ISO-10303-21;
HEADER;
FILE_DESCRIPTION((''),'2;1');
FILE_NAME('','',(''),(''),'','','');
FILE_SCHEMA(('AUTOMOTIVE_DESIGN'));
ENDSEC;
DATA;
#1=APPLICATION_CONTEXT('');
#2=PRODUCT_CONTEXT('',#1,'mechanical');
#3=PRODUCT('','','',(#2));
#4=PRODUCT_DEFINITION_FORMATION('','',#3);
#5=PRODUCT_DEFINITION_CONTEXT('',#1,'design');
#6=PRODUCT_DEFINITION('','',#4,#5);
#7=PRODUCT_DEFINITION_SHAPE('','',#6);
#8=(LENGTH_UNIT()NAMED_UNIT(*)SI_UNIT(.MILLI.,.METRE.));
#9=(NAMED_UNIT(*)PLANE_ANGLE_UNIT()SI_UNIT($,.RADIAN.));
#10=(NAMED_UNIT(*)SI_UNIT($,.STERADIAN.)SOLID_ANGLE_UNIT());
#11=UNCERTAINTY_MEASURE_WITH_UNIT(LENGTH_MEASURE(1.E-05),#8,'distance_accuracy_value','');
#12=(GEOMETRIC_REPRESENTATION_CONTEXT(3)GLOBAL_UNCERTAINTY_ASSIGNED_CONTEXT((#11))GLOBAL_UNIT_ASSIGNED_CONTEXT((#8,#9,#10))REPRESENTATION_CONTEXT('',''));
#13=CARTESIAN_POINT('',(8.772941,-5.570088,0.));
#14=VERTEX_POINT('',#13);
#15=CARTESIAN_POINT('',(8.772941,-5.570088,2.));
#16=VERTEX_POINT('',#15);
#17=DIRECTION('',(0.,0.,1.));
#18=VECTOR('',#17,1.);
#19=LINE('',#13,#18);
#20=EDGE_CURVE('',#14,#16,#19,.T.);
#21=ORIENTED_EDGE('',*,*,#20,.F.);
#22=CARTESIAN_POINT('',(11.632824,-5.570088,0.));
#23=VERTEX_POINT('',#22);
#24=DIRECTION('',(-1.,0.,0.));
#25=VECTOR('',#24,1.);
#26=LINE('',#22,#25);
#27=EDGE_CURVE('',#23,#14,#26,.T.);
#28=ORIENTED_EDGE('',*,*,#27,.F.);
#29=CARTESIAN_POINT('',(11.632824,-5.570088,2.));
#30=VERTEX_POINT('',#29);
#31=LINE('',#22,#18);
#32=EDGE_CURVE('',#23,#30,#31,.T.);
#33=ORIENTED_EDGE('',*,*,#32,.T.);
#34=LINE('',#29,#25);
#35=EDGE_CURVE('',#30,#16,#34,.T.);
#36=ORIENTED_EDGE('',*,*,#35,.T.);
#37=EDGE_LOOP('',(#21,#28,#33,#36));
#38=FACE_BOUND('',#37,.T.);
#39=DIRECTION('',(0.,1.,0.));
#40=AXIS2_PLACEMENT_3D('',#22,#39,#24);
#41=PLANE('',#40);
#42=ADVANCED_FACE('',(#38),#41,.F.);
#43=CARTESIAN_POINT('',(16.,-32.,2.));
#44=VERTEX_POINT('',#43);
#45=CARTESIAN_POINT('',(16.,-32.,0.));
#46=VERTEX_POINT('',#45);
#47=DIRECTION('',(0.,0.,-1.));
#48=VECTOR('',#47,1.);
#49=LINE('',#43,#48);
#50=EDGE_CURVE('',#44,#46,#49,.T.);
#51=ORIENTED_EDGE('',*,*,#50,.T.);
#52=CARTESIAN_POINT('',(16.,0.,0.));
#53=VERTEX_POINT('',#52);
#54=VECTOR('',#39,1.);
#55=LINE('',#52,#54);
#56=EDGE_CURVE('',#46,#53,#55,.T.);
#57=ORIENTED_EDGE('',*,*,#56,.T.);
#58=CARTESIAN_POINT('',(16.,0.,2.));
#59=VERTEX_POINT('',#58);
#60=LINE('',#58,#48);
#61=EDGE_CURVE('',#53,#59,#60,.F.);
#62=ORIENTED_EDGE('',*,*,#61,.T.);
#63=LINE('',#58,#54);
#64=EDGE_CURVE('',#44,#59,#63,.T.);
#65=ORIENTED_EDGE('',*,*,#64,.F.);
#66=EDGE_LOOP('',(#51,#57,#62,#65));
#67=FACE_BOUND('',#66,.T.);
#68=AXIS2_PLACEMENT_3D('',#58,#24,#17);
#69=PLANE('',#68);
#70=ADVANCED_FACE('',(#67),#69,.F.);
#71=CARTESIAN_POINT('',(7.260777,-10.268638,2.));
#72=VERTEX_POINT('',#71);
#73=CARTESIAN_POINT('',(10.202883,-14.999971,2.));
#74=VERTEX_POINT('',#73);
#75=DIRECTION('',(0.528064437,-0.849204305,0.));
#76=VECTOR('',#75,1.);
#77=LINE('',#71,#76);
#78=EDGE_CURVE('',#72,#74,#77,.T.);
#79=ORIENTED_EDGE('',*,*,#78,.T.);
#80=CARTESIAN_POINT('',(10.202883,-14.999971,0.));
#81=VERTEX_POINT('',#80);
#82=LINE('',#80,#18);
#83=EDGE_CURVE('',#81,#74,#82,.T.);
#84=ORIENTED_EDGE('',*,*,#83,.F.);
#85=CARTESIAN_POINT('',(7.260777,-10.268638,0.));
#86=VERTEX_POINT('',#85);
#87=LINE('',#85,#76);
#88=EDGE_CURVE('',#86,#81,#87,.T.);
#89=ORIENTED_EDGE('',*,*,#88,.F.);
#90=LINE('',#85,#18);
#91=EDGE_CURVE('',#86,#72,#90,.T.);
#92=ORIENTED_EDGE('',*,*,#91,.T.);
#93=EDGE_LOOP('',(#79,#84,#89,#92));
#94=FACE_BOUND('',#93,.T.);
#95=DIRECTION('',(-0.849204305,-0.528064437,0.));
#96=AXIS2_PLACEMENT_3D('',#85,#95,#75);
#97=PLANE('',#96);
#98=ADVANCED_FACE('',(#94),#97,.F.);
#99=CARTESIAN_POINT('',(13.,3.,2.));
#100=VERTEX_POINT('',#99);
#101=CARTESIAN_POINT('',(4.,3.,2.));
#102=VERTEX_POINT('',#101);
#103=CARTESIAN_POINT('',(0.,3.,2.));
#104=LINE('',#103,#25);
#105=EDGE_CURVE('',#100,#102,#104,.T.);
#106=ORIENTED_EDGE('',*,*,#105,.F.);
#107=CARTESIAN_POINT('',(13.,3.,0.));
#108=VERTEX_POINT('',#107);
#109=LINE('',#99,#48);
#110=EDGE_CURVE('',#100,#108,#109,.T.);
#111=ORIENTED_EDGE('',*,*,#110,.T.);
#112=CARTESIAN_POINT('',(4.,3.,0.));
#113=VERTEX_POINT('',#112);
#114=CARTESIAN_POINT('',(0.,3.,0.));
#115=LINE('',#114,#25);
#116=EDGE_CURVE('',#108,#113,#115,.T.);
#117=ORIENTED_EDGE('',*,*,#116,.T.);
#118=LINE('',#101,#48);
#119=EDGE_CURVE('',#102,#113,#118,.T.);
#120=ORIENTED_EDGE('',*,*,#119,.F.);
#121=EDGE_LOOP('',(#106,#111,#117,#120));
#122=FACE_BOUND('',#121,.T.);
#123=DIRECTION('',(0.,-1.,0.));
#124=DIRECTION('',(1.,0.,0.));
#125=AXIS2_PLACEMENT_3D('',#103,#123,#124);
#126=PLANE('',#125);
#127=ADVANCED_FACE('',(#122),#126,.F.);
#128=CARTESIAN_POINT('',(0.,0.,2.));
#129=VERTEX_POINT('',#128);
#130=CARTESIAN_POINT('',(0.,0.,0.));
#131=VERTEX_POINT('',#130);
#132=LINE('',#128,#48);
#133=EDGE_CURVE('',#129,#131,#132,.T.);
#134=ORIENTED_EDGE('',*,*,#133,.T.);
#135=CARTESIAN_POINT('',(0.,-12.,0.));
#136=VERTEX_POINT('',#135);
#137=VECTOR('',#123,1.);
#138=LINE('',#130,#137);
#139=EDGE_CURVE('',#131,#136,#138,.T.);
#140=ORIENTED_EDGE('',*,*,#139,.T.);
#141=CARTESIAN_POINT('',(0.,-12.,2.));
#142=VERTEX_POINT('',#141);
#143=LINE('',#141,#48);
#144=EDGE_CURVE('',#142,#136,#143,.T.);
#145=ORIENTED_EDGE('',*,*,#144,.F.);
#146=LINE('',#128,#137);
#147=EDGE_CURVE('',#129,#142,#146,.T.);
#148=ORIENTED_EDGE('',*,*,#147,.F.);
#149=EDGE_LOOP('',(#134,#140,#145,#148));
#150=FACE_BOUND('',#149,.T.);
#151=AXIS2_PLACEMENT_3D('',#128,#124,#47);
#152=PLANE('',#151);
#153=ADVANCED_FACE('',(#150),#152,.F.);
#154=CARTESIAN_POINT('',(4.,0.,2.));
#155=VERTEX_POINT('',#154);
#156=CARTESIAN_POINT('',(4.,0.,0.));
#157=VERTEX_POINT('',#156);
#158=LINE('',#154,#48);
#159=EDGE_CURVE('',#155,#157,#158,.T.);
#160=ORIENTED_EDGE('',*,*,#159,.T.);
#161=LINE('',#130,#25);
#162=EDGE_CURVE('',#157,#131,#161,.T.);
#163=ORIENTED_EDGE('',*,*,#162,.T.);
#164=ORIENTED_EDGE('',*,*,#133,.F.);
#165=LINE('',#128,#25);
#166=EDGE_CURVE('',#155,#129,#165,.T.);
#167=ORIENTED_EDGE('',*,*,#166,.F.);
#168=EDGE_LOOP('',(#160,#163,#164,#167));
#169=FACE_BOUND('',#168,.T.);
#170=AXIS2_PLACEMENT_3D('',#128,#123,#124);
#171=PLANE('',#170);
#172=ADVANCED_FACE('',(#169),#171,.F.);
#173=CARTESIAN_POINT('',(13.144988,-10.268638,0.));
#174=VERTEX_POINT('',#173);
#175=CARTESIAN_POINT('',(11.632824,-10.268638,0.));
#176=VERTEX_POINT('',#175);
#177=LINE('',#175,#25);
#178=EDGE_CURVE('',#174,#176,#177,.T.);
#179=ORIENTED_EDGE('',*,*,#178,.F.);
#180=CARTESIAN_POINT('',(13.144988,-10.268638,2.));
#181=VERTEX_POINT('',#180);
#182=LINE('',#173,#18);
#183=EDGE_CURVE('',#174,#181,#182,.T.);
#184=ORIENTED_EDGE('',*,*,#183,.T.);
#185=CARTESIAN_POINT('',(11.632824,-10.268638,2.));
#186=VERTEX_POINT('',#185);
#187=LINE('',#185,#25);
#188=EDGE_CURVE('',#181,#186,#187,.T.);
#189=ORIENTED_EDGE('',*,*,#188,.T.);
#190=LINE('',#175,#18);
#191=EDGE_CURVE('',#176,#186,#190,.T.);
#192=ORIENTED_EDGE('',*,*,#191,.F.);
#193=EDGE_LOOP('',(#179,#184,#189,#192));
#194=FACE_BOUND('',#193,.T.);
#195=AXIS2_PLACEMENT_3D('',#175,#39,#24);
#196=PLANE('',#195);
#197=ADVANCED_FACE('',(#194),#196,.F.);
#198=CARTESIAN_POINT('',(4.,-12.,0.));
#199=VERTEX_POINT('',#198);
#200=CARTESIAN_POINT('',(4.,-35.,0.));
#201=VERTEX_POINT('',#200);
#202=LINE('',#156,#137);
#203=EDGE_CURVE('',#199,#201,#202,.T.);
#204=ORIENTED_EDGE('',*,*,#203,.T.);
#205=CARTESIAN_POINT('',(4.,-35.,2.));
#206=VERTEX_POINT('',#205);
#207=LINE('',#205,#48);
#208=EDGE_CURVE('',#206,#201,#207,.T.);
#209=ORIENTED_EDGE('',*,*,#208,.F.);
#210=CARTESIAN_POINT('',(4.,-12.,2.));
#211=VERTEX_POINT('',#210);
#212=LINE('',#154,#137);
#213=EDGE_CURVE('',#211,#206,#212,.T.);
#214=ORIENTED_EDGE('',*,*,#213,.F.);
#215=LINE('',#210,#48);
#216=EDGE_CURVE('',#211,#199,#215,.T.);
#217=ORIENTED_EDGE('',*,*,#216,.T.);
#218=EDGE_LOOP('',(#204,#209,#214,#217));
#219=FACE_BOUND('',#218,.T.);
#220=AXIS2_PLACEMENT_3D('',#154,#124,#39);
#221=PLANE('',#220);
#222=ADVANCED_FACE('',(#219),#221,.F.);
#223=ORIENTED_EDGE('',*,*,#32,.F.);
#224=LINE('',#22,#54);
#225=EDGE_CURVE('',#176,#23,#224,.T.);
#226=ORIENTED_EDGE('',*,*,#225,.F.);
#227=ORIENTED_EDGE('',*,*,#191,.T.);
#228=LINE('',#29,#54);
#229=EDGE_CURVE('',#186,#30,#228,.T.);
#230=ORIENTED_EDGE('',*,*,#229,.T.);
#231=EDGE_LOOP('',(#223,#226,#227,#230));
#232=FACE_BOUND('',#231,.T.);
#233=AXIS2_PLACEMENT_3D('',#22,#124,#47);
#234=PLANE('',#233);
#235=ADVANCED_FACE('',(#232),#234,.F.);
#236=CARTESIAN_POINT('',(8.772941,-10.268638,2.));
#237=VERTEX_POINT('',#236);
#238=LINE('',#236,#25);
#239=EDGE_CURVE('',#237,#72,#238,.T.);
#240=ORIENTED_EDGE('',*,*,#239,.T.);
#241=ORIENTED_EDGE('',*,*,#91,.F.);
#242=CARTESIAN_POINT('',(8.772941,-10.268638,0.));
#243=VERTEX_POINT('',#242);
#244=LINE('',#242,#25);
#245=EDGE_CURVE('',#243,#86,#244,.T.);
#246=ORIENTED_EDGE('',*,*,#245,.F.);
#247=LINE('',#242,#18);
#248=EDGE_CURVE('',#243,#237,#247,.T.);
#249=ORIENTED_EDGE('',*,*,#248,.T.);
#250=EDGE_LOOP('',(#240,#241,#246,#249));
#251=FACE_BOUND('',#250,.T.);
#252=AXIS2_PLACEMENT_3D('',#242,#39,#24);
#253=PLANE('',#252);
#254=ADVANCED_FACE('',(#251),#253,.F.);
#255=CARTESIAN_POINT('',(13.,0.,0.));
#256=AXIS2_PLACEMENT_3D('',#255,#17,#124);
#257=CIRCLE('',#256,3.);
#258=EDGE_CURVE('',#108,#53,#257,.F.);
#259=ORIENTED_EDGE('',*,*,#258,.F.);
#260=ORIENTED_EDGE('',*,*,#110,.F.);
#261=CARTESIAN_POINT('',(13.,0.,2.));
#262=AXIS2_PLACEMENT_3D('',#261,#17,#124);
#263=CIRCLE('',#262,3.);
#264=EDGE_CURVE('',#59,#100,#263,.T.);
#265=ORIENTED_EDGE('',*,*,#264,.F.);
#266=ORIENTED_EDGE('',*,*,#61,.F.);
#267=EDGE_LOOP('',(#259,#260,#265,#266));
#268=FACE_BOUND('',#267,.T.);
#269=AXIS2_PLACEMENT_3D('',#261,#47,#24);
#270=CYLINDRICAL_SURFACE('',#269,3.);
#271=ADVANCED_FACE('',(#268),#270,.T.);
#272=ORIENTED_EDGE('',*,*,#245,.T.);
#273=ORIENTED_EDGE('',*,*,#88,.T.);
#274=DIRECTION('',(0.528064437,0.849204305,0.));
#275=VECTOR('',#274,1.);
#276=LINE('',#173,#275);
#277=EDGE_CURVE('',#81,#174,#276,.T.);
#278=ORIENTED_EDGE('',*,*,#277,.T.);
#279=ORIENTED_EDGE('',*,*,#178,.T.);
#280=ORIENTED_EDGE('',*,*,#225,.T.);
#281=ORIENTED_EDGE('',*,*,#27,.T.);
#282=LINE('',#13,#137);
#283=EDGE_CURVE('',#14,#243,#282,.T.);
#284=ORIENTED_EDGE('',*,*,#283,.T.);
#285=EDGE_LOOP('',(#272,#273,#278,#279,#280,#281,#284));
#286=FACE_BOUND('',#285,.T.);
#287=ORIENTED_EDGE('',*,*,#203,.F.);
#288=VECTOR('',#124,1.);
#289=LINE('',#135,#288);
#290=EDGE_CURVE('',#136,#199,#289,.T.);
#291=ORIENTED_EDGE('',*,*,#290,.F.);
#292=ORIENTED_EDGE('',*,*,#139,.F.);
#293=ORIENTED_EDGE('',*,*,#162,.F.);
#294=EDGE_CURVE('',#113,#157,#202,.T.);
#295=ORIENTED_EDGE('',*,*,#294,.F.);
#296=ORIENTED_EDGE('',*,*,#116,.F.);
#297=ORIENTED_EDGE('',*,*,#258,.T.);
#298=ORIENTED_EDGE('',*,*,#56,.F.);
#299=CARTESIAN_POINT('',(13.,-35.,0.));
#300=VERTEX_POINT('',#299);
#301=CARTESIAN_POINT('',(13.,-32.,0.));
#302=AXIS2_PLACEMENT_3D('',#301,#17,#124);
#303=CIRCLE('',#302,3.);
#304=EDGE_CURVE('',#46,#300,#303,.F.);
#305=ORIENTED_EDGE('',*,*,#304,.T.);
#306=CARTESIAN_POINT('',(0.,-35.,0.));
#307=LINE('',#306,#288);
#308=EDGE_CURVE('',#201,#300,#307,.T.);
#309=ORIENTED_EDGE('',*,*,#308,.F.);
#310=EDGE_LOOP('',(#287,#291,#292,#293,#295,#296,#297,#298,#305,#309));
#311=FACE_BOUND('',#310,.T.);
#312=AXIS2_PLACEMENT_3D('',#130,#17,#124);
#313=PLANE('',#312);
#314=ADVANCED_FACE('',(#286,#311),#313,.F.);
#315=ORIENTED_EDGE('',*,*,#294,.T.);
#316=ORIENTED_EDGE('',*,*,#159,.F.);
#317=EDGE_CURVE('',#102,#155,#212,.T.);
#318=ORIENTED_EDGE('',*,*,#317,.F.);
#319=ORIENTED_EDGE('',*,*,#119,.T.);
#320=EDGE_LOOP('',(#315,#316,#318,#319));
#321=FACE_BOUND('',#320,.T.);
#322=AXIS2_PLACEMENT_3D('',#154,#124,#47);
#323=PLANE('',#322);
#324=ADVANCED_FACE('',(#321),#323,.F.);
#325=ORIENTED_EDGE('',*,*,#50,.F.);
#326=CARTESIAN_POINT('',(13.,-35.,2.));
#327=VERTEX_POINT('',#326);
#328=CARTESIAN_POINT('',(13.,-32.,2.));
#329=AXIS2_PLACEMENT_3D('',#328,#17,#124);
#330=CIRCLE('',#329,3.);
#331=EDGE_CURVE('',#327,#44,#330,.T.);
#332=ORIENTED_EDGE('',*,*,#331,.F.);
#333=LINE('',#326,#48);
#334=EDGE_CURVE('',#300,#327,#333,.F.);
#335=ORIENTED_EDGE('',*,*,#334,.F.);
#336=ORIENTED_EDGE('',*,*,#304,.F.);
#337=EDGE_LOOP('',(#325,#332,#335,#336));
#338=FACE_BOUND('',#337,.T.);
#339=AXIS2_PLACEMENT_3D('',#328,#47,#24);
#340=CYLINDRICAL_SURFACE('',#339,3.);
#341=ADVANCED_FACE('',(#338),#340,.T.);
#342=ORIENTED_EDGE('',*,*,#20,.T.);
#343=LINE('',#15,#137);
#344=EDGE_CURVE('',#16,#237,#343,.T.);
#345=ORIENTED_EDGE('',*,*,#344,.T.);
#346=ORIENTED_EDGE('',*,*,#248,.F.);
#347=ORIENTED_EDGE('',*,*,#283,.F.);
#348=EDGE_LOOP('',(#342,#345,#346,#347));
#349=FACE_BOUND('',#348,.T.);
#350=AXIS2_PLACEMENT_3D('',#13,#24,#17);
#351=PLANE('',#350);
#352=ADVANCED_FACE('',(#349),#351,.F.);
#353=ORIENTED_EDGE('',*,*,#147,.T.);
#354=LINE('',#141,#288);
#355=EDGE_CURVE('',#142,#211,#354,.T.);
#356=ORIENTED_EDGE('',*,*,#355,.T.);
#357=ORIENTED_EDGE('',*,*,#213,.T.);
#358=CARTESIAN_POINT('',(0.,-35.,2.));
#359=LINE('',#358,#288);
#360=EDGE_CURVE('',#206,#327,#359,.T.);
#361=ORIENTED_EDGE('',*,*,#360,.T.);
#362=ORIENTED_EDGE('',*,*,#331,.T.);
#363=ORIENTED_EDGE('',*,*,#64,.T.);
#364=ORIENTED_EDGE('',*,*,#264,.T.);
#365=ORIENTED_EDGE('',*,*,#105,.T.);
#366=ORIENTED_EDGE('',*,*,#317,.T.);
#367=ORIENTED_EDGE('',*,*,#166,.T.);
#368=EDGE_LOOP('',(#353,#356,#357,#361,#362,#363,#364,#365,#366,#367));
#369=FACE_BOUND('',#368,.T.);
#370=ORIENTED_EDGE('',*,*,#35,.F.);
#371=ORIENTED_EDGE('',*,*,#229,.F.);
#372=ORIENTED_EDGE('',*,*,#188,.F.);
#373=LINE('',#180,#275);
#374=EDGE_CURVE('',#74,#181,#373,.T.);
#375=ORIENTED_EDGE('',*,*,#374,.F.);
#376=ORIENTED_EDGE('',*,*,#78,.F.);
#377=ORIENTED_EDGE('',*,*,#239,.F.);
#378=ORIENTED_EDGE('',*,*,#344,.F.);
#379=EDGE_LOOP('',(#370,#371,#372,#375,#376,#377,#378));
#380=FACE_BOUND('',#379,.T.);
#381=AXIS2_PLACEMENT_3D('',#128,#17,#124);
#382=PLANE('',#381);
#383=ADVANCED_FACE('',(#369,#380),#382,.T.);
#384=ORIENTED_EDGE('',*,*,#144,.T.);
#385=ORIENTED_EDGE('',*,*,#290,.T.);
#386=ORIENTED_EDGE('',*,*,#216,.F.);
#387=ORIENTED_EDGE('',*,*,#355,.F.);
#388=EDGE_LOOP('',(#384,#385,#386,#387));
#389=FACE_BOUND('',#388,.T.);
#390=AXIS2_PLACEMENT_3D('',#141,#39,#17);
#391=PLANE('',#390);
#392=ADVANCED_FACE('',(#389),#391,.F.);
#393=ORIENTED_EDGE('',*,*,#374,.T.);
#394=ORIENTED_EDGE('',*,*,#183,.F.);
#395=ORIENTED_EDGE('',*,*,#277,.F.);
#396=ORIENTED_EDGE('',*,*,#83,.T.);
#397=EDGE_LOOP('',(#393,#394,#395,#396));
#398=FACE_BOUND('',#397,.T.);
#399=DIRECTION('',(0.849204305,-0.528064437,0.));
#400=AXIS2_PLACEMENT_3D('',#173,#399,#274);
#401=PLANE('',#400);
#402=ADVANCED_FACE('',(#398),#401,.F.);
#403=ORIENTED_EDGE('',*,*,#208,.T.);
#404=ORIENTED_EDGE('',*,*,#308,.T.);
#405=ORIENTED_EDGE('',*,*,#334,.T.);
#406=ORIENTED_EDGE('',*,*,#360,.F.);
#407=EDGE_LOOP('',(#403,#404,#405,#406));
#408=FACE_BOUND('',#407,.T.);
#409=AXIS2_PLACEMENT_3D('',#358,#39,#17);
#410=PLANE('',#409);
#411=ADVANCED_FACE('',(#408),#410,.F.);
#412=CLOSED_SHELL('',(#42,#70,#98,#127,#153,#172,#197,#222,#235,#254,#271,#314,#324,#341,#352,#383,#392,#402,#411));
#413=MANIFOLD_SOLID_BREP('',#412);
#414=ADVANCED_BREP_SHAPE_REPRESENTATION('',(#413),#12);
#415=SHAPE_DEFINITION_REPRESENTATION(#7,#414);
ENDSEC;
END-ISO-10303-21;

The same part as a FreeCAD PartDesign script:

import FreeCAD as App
import Part
import Sketcher
Q = App.Units.Quantity


def edges_at(feature, points):
    """Names of the edges that pass closest to the given points."""
    edges = feature.Shape.Edges
    near = lambda p: min(range(len(edges)), key=lambda i: edges[i].distToShape(Part.Vertex(*p))[0])
    return sorted({f"Edge{near(p) + 1}" for p in points})


def add_polygon(sketch, points):
    """Adds a closed chain of lines whose ends are joined by coincident constraints."""
    first, n = sketch.GeometryCount, len(points)
    for a, b in zip(points, points[1:] + points[:1]):
        sketch.addGeometry(Part.LineSegment(App.Vector(*a, 0), App.Vector(*b, 0)), False)
    for i in range(n):
        sketch.addConstraint(Sketcher.Constraint("Coincident", first + i, 2, first + (i + 1) % n, 1))

doc = App.newDocument("Part")
body = doc.addObject("PartDesign::Body", "Body")

# Sketch on XY plane
sketch1 = body.newObject("Sketcher::SketchObject", "Sketch")
sketch1.AttachmentSupport = (doc.getObject("XY_Plane"), [""])
sketch1.MapMode = "FlatFace"
add_polygon(sketch1, [(4, 0), (0, 0), (0, -12), (4, -12), (4, -35), (16, -35), (16, 3), (4, 3)])  # lines 0-7
sketch1.addConstraint(Sketcher.Constraint("Horizontal", 0))
sketch1.addConstraint(Sketcher.Constraint("Vertical", 1))
sketch1.addConstraint(Sketcher.Constraint("Horizontal", 2))
sketch1.addConstraint(Sketcher.Constraint("Vertical", 3))
sketch1.addConstraint(Sketcher.Constraint("Horizontal", 4))
sketch1.addConstraint(Sketcher.Constraint("Vertical", 5))
sketch1.addConstraint(Sketcher.Constraint("Horizontal", 6))
sketch1.addConstraint(Sketcher.Constraint("Vertical", 7))
sketch1.addConstraint(Sketcher.Constraint("Coincident", 0, 2, -1, 1))
sketch1.addConstraint(Sketcher.Constraint("Vertical", 3, 2, 6, 2))
sketch1.addConstraint(Sketcher.Constraint("Equal", 6, 1))
sketch1.addConstraint(Sketcher.Constraint("DistanceX", 0, 2, 0, 1, Q("4 mm")))
sketch1.addConstraint(Sketcher.Constraint("DistanceX", 4, 1, 4, 2, Q("12 mm")))
sketch1.addConstraint(Sketcher.Constraint("DistanceY", 3, 2, 3, 1, Q("23 mm")))
sketch1.addConstraint(Sketcher.Constraint("DistanceY", 5, 1, 5, 2, Q("38 mm")))
pad1 = body.newObject("PartDesign::Pad", "Pad")
pad1.Profile = sketch1
pad1.Length = 2

# Sketch on XY plane
sketch2 = body.newObject("Sketcher::SketchObject", "Sketch001")
sketch2.AttachmentSupport = (doc.getObject("XY_Plane"), [""])
sketch2.MapMode = "FlatFace"
sketch2.AttachmentOffset = App.Placement(App.Vector(0, 0, 2), App.Rotation())
add_polygon(sketch2, [(11.6, -5.6), (8.8, -5.6), (8.8, -10.3), (7.3, -10.3), (10.2, -15), (13.1, -10.3), (11.6, -10.3)])  # lines 0-6
sketch2.addConstraint(Sketcher.Constraint("Horizontal", 0))
sketch2.addConstraint(Sketcher.Constraint("Vertical", 1))
sketch2.addConstraint(Sketcher.Constraint("Horizontal", 2))
sketch2.addConstraint(Sketcher.Constraint("Horizontal", 5))
sketch2.addConstraint(Sketcher.Constraint("Vertical", 6))
sketch2.addConstraint(Sketcher.Constraint("Horizontal", 2, 2, 4, 2))
sketch2.addConstraint(Sketcher.Constraint("Equal", 2, 5))
sketch2.addConstraint(Sketcher.Constraint("Equal", 3, 4))
sketch2.addConstraint(Sketcher.Constraint("DistanceY", 1, 2, 1, 1, Q("4.69855 mm")))
sketch2.addConstraint(Sketcher.Constraint("Distance", 3, Q("5.57149 mm")))
sketch2.addConstraint(Sketcher.Constraint("DistanceX", 0, 2, 0, 1, Q("2.859883 mm")))
sketch2.addConstraint(Sketcher.Constraint("DistanceX", 2, 2, 2, 1, Q("1.512164 mm")))
sketch2.addConstraint(Sketcher.Constraint("DistanceX", -1, 1, 0, 2, Q("8.772941 mm")))
sketch2.addConstraint(Sketcher.Constraint("DistanceY", 3, 2, -1, 1, Q("14.999971 mm")))
pocket1 = body.newObject("PartDesign::Pocket", "Pocket")
pocket1.Profile = sketch2
pocket1.Length = 2
doc.recompute()

fillet = body.newObject("PartDesign::Fillet", "Fillet")
fillet.Base = (pocket1, edges_at(pocket1, [(16, 3, 1), (16, -35, 1)]))
fillet.Radius = 3

doc.recompute()
